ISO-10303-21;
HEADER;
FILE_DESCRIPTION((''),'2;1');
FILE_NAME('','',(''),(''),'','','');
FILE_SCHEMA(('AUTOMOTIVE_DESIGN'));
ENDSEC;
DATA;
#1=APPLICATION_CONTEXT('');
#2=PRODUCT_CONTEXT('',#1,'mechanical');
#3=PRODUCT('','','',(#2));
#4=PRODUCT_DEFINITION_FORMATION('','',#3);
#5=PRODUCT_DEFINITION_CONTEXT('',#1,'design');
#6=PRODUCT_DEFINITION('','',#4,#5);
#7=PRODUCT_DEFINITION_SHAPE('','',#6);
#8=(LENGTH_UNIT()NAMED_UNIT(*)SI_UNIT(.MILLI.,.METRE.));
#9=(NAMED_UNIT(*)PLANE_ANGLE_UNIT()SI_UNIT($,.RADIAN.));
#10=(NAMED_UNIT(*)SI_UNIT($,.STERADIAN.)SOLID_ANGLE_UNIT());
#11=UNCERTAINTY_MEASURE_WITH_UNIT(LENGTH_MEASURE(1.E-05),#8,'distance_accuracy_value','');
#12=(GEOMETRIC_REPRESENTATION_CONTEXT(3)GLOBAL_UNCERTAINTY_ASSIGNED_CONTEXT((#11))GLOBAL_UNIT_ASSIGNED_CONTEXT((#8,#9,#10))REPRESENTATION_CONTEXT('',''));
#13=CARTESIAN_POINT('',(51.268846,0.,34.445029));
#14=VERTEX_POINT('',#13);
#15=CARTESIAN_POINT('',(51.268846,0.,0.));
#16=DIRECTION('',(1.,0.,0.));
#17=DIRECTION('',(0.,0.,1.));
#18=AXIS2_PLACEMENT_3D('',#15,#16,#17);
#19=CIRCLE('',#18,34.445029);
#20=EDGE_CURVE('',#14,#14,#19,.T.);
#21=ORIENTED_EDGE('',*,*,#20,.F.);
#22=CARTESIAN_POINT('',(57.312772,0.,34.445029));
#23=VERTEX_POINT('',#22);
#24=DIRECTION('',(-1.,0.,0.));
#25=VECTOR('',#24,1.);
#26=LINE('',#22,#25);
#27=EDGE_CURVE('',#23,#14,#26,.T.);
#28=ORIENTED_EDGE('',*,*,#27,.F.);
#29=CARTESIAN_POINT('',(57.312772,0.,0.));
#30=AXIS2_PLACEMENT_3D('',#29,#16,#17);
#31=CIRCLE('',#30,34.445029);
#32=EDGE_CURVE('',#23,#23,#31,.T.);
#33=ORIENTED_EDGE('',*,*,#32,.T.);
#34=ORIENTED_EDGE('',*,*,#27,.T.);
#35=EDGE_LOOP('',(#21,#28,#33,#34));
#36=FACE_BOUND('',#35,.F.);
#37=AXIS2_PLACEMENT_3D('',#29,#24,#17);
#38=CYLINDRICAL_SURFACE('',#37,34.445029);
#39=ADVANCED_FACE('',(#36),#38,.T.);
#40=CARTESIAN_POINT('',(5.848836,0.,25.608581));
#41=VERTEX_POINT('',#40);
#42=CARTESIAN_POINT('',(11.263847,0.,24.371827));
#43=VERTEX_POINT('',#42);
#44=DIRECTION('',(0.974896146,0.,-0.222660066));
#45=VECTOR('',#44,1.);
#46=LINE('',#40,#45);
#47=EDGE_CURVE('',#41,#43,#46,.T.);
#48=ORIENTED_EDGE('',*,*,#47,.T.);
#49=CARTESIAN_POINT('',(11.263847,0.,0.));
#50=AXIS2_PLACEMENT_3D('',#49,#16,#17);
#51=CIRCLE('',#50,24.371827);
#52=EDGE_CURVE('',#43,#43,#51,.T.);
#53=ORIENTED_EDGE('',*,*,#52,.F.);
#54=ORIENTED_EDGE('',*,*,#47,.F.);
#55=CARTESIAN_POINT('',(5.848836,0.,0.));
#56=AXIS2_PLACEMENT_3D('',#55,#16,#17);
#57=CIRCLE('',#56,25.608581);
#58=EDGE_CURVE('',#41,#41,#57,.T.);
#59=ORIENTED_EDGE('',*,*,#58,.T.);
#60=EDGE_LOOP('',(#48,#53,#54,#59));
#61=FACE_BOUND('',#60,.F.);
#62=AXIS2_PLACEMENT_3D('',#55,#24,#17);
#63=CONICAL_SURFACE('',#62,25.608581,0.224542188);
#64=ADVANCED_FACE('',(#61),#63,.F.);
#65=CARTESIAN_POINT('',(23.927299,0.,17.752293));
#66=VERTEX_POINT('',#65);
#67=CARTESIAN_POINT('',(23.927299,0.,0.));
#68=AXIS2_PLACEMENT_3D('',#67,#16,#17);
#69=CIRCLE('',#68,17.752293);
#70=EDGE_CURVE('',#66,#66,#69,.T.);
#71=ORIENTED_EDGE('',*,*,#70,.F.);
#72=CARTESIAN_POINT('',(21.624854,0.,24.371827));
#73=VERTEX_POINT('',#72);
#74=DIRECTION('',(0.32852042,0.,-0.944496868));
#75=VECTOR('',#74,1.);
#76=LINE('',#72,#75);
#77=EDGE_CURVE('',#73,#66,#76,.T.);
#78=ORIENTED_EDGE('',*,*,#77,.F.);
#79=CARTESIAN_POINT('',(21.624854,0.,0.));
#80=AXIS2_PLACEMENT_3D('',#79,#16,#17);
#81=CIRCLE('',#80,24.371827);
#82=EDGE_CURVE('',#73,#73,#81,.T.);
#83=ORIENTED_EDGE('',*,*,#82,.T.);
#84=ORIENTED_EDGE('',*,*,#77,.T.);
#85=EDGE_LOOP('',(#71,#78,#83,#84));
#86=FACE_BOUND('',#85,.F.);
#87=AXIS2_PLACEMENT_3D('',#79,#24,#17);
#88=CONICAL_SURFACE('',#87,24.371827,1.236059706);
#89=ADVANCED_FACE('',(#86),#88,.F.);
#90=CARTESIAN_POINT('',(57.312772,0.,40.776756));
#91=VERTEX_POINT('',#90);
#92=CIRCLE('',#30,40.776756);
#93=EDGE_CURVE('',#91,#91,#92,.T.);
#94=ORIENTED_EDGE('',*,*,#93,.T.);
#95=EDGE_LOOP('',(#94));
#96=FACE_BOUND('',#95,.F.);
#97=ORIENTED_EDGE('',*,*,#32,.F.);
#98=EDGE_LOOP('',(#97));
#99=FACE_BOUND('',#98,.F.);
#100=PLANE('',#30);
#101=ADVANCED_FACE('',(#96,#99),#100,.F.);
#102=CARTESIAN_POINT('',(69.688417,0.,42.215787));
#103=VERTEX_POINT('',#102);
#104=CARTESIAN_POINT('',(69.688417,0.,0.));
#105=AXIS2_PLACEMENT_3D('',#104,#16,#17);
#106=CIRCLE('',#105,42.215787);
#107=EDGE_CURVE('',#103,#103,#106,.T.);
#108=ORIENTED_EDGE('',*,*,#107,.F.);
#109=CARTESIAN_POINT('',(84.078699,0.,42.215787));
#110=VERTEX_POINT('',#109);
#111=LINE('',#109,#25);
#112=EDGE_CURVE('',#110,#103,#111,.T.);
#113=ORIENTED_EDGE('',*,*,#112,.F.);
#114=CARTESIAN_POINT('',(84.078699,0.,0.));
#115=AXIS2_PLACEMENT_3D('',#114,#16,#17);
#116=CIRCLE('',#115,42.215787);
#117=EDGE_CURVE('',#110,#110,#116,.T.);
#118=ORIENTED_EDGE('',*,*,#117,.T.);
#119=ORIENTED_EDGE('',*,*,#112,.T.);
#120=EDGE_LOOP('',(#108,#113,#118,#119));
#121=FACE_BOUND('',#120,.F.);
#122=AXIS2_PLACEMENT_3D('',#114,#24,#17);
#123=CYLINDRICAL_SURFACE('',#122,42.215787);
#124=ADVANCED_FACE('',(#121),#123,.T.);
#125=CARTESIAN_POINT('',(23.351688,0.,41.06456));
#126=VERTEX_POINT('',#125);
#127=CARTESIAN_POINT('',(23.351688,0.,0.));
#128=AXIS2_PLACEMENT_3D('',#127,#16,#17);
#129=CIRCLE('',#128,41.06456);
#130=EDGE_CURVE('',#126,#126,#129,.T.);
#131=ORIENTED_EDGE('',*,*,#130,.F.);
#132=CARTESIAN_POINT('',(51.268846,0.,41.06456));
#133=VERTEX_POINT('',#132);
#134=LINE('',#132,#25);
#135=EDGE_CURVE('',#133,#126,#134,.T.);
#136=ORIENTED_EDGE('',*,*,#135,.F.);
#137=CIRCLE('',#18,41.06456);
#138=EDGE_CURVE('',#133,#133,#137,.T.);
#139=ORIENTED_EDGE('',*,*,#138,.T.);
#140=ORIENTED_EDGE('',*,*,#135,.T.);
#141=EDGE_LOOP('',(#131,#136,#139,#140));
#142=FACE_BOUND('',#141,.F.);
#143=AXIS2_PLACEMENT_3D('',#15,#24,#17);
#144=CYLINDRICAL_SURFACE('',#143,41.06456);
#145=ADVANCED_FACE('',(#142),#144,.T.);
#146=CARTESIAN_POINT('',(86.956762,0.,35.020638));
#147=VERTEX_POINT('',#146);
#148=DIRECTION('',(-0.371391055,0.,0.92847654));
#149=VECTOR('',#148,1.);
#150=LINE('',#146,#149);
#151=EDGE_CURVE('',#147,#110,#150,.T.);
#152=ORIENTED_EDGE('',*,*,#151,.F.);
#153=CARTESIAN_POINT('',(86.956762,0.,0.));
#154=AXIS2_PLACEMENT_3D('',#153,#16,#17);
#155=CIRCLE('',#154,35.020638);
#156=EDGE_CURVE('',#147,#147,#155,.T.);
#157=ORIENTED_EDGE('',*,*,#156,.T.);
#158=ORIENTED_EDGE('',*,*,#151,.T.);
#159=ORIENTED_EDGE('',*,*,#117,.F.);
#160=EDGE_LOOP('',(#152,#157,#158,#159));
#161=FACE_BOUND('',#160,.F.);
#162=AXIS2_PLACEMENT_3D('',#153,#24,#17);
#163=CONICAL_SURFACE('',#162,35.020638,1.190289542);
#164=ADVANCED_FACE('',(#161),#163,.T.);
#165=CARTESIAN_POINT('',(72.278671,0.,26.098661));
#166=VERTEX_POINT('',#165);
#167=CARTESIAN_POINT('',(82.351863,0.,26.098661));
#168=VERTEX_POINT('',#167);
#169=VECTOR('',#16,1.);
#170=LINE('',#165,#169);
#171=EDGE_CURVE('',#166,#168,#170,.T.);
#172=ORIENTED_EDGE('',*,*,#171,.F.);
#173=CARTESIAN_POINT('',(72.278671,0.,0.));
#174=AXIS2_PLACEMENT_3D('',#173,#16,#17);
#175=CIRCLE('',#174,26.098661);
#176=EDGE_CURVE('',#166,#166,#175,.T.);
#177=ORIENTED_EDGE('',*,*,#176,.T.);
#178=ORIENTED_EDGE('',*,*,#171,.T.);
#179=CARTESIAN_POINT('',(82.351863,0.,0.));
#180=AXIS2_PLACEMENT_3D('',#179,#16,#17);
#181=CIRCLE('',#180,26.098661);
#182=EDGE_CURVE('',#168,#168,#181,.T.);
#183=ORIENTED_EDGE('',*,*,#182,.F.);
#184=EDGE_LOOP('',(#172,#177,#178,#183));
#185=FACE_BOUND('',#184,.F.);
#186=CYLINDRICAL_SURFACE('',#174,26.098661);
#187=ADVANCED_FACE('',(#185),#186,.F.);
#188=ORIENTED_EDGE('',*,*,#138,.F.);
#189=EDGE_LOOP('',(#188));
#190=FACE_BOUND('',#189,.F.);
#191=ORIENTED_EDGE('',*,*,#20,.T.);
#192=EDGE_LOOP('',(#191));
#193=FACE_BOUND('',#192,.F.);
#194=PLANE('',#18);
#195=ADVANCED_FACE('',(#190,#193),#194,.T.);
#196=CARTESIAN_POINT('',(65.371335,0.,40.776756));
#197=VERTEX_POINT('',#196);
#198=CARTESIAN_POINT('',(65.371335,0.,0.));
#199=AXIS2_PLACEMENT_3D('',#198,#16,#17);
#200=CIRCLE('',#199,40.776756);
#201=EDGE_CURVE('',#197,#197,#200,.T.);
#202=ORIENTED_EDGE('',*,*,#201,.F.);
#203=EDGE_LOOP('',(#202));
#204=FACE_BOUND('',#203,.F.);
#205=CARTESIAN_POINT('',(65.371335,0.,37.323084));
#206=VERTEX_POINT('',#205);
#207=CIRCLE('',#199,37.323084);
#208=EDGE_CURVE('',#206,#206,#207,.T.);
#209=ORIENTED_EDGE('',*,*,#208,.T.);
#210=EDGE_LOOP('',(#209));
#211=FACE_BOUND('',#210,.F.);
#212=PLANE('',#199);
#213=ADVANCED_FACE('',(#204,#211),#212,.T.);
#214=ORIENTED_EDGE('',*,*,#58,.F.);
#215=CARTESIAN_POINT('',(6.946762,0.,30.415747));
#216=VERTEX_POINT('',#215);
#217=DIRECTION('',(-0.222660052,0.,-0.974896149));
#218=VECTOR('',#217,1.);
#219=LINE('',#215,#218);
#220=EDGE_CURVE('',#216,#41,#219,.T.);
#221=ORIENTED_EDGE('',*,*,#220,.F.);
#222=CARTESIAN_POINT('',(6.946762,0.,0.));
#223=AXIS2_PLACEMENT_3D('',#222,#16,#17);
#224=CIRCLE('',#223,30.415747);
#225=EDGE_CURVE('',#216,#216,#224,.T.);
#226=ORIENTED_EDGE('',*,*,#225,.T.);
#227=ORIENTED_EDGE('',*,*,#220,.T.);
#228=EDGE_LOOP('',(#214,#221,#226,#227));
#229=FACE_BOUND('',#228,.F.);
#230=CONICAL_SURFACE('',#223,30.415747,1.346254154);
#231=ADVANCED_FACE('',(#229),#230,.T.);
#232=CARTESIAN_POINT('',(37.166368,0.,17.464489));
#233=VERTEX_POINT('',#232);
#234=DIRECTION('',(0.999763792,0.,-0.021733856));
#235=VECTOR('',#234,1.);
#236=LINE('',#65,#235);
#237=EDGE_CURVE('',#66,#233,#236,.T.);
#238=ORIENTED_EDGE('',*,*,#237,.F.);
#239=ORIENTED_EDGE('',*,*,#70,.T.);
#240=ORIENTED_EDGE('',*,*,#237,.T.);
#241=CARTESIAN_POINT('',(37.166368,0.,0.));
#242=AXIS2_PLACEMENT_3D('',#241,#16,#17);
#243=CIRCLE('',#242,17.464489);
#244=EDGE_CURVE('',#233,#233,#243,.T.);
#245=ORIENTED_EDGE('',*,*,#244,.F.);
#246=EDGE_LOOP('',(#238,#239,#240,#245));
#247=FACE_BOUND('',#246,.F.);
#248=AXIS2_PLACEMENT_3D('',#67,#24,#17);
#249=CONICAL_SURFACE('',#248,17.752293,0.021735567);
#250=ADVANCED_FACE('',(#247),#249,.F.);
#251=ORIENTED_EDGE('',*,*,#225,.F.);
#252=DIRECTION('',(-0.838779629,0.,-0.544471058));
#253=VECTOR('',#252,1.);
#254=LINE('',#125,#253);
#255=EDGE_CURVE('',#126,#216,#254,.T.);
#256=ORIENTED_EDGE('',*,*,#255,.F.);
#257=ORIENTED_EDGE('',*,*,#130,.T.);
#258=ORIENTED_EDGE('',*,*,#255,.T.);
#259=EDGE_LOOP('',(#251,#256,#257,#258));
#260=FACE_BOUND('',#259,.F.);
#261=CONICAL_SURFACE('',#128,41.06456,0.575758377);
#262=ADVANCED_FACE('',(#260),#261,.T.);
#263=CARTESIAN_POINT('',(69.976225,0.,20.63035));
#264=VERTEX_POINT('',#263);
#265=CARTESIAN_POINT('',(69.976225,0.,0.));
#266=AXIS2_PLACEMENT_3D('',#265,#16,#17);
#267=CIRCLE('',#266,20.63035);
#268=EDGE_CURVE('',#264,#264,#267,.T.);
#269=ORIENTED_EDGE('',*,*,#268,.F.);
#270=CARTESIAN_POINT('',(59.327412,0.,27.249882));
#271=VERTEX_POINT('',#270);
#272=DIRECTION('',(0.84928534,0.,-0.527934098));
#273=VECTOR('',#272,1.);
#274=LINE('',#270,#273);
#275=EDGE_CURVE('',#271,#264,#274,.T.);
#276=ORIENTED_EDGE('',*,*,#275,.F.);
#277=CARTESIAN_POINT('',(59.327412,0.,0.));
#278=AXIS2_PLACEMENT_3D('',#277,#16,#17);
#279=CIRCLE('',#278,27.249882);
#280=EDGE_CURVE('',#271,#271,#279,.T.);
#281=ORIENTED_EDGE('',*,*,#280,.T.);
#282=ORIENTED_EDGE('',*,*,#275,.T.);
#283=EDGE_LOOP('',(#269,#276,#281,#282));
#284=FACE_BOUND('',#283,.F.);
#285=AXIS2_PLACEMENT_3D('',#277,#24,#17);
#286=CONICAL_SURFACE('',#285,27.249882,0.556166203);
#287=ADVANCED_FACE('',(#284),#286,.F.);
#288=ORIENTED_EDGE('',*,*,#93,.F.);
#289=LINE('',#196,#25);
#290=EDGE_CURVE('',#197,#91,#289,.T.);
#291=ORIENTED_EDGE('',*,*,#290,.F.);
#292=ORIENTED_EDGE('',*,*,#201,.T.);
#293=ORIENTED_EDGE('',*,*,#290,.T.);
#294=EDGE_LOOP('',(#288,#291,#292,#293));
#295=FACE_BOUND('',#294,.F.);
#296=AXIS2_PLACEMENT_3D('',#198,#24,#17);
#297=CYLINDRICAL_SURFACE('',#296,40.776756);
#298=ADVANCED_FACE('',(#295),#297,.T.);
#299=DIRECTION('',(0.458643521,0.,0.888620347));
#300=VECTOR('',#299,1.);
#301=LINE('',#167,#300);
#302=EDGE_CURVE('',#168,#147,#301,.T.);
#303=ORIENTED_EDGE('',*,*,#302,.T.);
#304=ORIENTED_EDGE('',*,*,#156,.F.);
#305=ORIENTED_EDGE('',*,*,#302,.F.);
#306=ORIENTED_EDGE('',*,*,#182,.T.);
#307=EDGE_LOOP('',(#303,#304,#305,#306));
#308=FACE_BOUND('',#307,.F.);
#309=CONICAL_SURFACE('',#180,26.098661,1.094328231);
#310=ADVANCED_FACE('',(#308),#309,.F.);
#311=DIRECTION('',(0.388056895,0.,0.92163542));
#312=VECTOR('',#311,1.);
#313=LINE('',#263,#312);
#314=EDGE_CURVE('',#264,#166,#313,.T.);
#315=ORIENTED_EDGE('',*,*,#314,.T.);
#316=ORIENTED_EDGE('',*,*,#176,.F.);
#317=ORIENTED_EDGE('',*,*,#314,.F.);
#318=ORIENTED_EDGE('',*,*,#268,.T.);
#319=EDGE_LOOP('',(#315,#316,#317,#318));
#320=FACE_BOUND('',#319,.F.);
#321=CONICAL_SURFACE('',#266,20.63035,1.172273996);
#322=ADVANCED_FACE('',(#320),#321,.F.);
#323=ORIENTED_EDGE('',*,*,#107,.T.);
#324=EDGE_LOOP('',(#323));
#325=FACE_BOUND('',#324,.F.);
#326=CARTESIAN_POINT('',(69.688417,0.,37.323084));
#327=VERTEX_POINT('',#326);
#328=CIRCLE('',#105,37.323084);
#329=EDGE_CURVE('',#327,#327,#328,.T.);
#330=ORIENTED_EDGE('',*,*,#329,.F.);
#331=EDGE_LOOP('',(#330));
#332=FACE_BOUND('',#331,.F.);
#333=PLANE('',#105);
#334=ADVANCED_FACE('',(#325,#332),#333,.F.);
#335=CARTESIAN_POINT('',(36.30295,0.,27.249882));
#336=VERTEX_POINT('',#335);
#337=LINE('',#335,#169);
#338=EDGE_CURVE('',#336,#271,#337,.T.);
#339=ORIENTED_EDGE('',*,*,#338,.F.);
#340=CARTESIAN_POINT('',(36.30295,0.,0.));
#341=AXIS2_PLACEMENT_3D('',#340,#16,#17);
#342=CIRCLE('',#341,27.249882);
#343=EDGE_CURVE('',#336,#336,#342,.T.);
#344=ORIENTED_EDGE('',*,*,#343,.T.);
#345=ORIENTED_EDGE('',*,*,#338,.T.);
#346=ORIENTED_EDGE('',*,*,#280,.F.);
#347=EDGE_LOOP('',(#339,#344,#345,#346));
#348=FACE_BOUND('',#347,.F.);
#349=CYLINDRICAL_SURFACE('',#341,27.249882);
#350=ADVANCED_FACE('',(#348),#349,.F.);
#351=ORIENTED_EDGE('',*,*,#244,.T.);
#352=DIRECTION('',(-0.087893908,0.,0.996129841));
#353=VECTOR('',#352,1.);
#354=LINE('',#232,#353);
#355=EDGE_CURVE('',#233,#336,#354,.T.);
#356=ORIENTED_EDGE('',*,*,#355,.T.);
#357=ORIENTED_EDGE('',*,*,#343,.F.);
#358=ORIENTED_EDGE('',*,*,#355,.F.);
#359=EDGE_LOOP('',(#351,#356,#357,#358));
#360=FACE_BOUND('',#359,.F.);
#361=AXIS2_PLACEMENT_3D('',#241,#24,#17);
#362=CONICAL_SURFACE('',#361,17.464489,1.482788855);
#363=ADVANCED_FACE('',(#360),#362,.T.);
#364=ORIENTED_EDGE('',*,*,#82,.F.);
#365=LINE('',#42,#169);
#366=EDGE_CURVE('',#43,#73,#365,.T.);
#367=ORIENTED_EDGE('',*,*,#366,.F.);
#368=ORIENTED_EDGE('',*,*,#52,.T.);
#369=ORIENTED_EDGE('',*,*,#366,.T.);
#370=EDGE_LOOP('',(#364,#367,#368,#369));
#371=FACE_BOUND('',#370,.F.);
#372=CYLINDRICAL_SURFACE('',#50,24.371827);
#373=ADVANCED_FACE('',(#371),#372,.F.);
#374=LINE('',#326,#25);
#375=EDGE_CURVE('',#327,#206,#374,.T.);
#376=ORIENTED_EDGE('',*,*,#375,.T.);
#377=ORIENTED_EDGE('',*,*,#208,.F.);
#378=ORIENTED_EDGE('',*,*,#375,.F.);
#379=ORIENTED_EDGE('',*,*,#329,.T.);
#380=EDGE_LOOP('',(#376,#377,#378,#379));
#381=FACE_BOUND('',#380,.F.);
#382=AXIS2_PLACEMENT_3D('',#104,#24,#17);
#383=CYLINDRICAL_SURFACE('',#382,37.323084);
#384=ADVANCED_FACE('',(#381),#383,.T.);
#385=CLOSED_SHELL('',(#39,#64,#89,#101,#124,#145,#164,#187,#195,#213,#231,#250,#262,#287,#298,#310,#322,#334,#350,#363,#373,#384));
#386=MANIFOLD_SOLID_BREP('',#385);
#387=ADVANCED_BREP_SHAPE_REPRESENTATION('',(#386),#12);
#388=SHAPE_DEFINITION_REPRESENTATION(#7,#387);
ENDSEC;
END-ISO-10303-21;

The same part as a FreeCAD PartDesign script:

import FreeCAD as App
import Part
import Sketcher
from FreeCAD import Vector

doc = App.newDocument("Part")
body = doc.addObject("PartDesign::Body", "Body")

sketch1 = doc.addObject("Sketcher::SketchObject", "Sketch")
body.addObject(sketch1)
sketch1.AttachmentSupport = (doc.XZ_Plane, [""])
sketch1.MapMode = "FlatFace"
sketch1.addGeometry(Part.LineSegment(Vector(6.9, 30.4, 0), Vector(5.8, 25.6, 0)), False)
sketch1.addGeometry(Part.LineSegment(Vector(5.8, 25.6, 0), Vector(11.3, 24.4, 0)), False)
sketch1.addGeometry(Part.LineSegment(Vector(11.3, 24.4, 0), Vector(21.6, 24.4, 0)), False)
sketch1.addGeometry(Part.LineSegment(Vector(21.6, 24.4, 0), Vector(23.9, 17.8, 0)), False)
sketch1.addGeometry(Part.LineSegment(Vector(23.9, 17.8, 0), Vector(37.2, 17.5, 0)), False)
sketch1.addGeometry(Part.LineSegment(Vector(37.2, 17.5, 0), Vector(36.3, 27.2, 0)), False)
sketch1.addGeometry(Part.LineSegment(Vector(36.3, 27.2, 0), Vector(59.3, 27.2, 0)), False)
sketch1.addGeometry(Part.LineSegment(Vector(59.3, 27.2, 0), Vector(70, 20.6, 0)), False)
sketch1.addGeometry(Part.LineSegment(Vector(70, 20.6, 0), Vector(72.3, 26.1, 0)), False)
sketch1.addGeometry(Part.LineSegment(Vector(72.3, 26.1, 0), Vector(82.4, 26.1, 0)), False)
sketch1.addGeometry(Part.LineSegment(Vector(82.4, 26.1, 0), Vector(87, 35, 0)), False)
sketch1.addGeometry(Part.LineSegment(Vector(87, 35, 0), Vector(84.1, 42.2, 0)), False)
sketch1.addGeometry(Part.LineSegment(Vector(84.1, 42.2, 0), Vector(69.7, 42.2, 0)), False)
sketch1.addGeometry(Part.LineSegment(Vector(69.7, 42.2, 0), Vector(69.7, 37.3, 0)), False)
sketch1.addGeometry(Part.LineSegment(Vector(69.7, 37.3, 0), Vector(65.4, 37.3, 0)), False)
sketch1.addGeometry(Part.LineSegment(Vector(65.4, 37.3, 0), Vector(65.4, 40.8, 0)), False)
sketch1.addGeometry(Part.LineSegment(Vector(65.4, 40.8, 0), Vector(57.3, 40.8, 0)), False)
sketch1.addGeometry(Part.LineSegment(Vector(57.3, 40.8, 0), Vector(57.3, 34.4, 0)), False)
sketch1.addGeometry(Part.LineSegment(Vector(57.3, 34.4, 0), Vector(51.3, 34.4, 0)), False)
sketch1.addGeometry(Part.LineSegment(Vector(51.3, 34.4, 0), Vector(51.3, 41.1, 0)), False)
sketch1.addGeometry(Part.LineSegment(Vector(51.3, 41.1, 0), Vector(23.4, 41.1, 0)), False)
sketch1.addGeometry(Part.LineSegment(Vector(23.4, 41.1, 0), Vector(6.9, 30.4, 0)), False)
sketch1.addConstraint(Sketcher.Constraint("Coincident", 0, 2, 1, 1))
sketch1.addConstraint(Sketcher.Constraint("Coincident", 1, 2, 2, 1))
sketch1.addConstraint(Sketcher.Constraint("Coincident", 2, 2, 3, 1))
sketch1.addConstraint(Sketcher.Constraint("Coincident", 3, 2, 4, 1))
sketch1.addConstraint(Sketcher.Constraint("Coincident", 4, 2, 5, 1))
sketch1.addConstraint(Sketcher.Constraint("Coincident", 5, 2, 6, 1))
sketch1.addConstraint(Sketcher.Constraint("Coincident", 6, 2, 7, 1))
sketch1.addConstraint(Sketcher.Constraint("Coincident", 7, 2, 8, 1))
sketch1.addConstraint(Sketcher.Constraint("Coincident", 8, 2, 9, 1))
sketch1.addConstraint(Sketcher.Constraint("Coincident", 9, 2, 10, 1))
sketch1.addConstraint(Sketcher.Constraint("Coincident", 10, 2, 11, 1))
sketch1.addConstraint(Sketcher.Constraint("Coincident", 11, 2, 12, 1))
sketch1.addConstraint(Sketcher.Constraint("Coincident", 12, 2, 13, 1))
sketch1.addConstraint(Sketcher.Constraint("Coincident", 13, 2, 14, 1))
sketch1.addConstraint(Sketcher.Constraint("Coincident", 14, 2, 15, 1))
sketch1.addConstraint(Sketcher.Constraint("Coincident", 15, 2, 16, 1))
sketch1.addConstraint(Sketcher.Constraint("Coincident", 16, 2, 17, 1))
sketch1.addConstraint(Sketcher.Constraint("Coincident", 17, 2, 18, 1))
sketch1.addConstraint(Sketcher.Constraint("Coincident", 18, 2, 19, 1))
sketch1.addConstraint(Sketcher.Constraint("Coincident", 19, 2, 20, 1))
sketch1.addConstraint(Sketcher.Constraint("Coincident", 20, 2, 21, 1))
sketch1.addConstraint(Sketcher.Constraint("Coincident", 21, 2, 0, 1))
sketch1.addConstraint(Sketcher.Constraint("Horizontal", 2))
sketch1.addConstraint(Sketcher.Constraint("Horizontal", 6))
sketch1.addConstraint(Sketcher.Constraint("Horizontal", 9))
sketch1.addConstraint(Sketcher.Constraint("Horizontal", 12))
sketch1.addConstraint(Sketcher.Constraint("Vertical", 13))
sketch1.addConstraint(Sketcher.Constraint("Horizontal", 14))
sketch1.addConstraint(Sketcher.Constraint("Vertical", 15))
sketch1.addConstraint(Sketcher.Constraint("Horizontal", 16))
sketch1.addConstraint(Sketcher.Constraint("Vertical", 17))
sketch1.addConstraint(Sketcher.Constraint("Horizontal", 18))
sketch1.addConstraint(Sketcher.Constraint("Vertical", 19))
sketch1.addConstraint(Sketcher.Constraint("Horizontal", 20))
sketch1.addConstraint(Sketcher.Constraint("Perpendicular", 0, 1))
sketch1.addConstraint(Sketcher.Constraint("DistanceX", 6, 1, 6, 2, 23.024462))
sketch1.addConstraint(Sketcher.Constraint("DistanceX", 9, 1, 9, 2, 10.073192))
sketch1.addConstraint(Sketcher.Constraint("DistanceX", 12, 2, 12, 1, 14.390282))
sketch1.addConstraint(Sketcher.Constraint("DistanceX", 14, 2, 14, 1, 4.317082))
sketch1.addConstraint(Sketcher.Constraint("DistanceX", 20, 2, 20, 1, 27.917158))
sketch1.addConstraint(Sketcher.Constraint("DistanceY", 15, 1, 15, 2, 3.453672))
sketch1.addConstraint(Sketcher.Constraint("DistanceY", 19, 1, 19, 2, 6.619531))
sketch1.addConstraint(Sketcher.Constraint("DistanceX", -1, 1, 3, 2, 23.927299))
sketch1.addConstraint(Sketcher.Constraint("DistanceX", -1, 1, 11, 2, 84.078699))
sketch1.addConstraint(Sketcher.Constraint("DistanceY", 0, 2, 5, 2, 1.641301))
sketch1.addConstraint(Sketcher.Constraint("DistanceX", 9, 2, 10, 2, 4.604899))
sketch1.addConstraint(Sketcher.Constraint("Distance", 0, 4.930952))
sketch1.addConstraint(Sketcher.Constraint("Distance", 1, 5.554449))
sketch1.addConstraint(Sketcher.Constraint("Distance", 3, 7.008529))
sketch1.addConstraint(Sketcher.Constraint("Distance", 5, 9.823411))
sketch1.addConstraint(Sketcher.Constraint("Distance", 8, 5.933269))
sketch1.addConstraint(Sketcher.Constraint("Distance", 21, 19.558088))
sketch1.addConstraint(Sketcher.Constraint("DistanceX", 2, 1, 2, 2, 10.361007))
sketch1.addConstraint(Sketcher.Constraint("DistanceX", 16, 2, 16, 1, 8.058563))
sketch1.addConstraint(Sketcher.Constraint("DistanceX", 18, 2, 18, 1, 6.043926))
sketch1.addConstraint(Sketcher.Constraint("DistanceY", 13, 2, 13, 1, 4.892703))
sketch1.addConstraint(Sketcher.Constraint("DistanceY", 17, 2, 17, 1, 6.331727))
sketch1.addConstraint(Sketcher.Constraint("DistanceY", -1, 1, 0, 2, 25.608581))
sketch1.addConstraint(Sketcher.Constraint("DistanceY", -1, 1, 4, 2, 17.464489))
sketch1.addConstraint(Sketcher.Constraint("DistanceX", -1, 1, 5, 2, 36.30295))
sketch1.addConstraint(Sketcher.Constraint("DistanceY", -1, 1, 7, 2, 20.63035))
sketch1.addConstraint(Sketcher.Constraint("DistanceX", -1, 1, 8, 2, 72.278671))
sketch1.addConstraint(Sketcher.Constraint("DistanceY", -1, 1, 8, 2, 26.098661))
sketch1.addConstraint(Sketcher.Constraint("DistanceY", -1, 1, 17, 2, 34.445029))
sketch1.addConstraint(Sketcher.Constraint("DistanceX", -1, 1, 21, 2, 6.946762))
sketch1.addConstraint(Sketcher.Constraint("DistanceY", 10, 2, 11, 2, 7.195149))
revolution = doc.addObject("PartDesign::Revolution", "Revolution")
body.addObject(revolution)
revolution.Profile = sketch1
revolution.ReferenceAxis = (sketch1, ["H_Axis"])
revolution.Angle = 360

doc.recompute()
